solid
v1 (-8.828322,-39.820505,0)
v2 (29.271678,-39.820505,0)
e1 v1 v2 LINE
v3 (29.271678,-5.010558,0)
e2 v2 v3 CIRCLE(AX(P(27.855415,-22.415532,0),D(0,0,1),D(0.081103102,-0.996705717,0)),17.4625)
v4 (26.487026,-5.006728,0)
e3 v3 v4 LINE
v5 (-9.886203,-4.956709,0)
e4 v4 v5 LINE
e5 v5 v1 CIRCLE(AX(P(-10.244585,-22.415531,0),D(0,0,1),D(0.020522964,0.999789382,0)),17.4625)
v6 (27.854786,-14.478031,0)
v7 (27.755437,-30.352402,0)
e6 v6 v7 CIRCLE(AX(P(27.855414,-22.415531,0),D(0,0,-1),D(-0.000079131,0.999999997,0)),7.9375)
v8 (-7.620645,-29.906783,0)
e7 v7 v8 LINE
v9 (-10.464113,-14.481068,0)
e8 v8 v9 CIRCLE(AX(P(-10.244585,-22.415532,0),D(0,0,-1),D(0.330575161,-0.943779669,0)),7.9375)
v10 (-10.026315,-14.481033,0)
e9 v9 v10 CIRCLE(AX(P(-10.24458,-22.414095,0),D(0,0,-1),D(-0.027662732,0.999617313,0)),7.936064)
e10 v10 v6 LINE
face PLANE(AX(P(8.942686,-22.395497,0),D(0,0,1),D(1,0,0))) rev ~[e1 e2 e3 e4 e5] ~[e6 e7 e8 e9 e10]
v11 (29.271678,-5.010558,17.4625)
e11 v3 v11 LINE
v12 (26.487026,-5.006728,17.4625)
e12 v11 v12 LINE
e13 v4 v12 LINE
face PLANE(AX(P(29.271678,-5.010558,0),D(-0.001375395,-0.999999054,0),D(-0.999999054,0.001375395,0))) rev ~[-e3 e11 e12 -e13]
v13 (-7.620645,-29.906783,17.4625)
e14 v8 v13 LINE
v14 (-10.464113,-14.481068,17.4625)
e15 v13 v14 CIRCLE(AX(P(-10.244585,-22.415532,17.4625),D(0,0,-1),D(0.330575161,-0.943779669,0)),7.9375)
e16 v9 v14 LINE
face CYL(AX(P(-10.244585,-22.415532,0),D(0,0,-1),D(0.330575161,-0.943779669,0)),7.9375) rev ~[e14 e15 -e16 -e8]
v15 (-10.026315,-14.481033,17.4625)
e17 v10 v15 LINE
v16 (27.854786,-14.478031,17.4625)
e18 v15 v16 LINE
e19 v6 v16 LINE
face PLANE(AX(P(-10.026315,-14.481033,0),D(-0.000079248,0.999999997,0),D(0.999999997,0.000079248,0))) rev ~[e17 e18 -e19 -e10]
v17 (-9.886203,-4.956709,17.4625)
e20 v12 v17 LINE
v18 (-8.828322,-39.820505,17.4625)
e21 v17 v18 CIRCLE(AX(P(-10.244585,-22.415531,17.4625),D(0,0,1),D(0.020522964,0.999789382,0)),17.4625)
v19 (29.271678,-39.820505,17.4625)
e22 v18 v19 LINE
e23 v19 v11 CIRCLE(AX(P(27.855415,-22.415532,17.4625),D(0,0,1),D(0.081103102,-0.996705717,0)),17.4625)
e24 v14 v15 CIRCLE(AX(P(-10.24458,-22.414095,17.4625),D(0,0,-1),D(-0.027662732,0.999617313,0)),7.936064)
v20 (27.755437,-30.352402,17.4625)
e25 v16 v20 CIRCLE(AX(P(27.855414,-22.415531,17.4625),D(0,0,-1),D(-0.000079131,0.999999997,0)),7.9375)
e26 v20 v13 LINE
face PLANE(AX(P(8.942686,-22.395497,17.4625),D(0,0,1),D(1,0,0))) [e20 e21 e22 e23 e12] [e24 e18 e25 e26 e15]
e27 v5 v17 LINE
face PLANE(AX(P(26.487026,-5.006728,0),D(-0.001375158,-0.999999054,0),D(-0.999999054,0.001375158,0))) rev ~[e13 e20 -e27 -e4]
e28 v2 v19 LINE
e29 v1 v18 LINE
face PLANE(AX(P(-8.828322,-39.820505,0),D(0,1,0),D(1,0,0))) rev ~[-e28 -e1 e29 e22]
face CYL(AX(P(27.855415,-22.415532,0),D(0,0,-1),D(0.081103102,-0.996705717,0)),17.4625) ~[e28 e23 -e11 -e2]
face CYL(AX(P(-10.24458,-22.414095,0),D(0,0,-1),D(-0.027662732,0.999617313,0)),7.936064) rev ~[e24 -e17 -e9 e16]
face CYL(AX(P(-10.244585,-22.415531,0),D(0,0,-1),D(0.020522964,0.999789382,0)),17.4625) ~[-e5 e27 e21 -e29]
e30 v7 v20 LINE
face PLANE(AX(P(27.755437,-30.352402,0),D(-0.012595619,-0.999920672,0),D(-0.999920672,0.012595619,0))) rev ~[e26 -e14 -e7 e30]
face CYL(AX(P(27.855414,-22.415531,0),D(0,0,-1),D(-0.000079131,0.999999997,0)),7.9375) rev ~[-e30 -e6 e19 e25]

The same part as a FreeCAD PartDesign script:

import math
import FreeCAD as App
import Part
import Sketcher
Q = App.Units.Quantity

doc = App.newDocument("Part")
params = doc.addObject("Spreadsheet::Sheet", "Params")
for row, (alias, value) in enumerate([
    ("sketch1_width", "1.5 in"),
    ("sketch1_radius", "0.6875 in"),
    ("sketch1_radius2", "0.3125 in"),
    ("pad1_length", "0.6875 in"),
], start=1):
    params.set(f"A{row}", alias)
    params.set(f"B{row}", "=" + value)
    params.setAlias(f"B{row}", alias)

body = doc.addObject("PartDesign::Body", "Body")

sketch1 = body.newObject("Sketcher::SketchObject", "Sketch")
sketch1.AttachmentSupport = (doc.getObject("XY_Plane"), [""])
sketch1.MapMode = "FlatFace"
sketch1.addGeometry(Part.LineSegment(App.Vector(-8.83, -39.82, 0), App.Vector(29.27, -39.82, 0)), False)
sketch1.addGeometry(Part.ArcOfCircle(Part.Circle(App.Vector(27.86, -22.42, 0), App.Vector(0, 0, 1), 17.46), math.radians(-85), math.radians(85)), False)
sketch1.addGeometry(Part.LineSegment(App.Vector(29.27, -5.01, 0), App.Vector(26.49, -5.01, 0)), False)
sketch1.addGeometry(Part.LineSegment(App.Vector(26.49, -5.01, 0), App.Vector(-9.89, -4.96, 0)), False)
sketch1.addGeometry(Part.ArcOfCircle(Part.Circle(App.Vector(-10.24, -22.42, 0), App.Vector(0, 0, 1), 17.46), math.radians(89), math.radians(275)), False)
sketch1.addGeometry(Part.LineSegment(App.Vector(-10.03, -14.48, 0), App.Vector(27.85, -14.48, 0)), False)
sketch1.addGeometry(Part.ArcOfCircle(Part.Circle(App.Vector(27.86, -22.42, 0), App.Vector(0, 0, 1), 7.94), math.radians(-91), math.radians(90)), False)
sketch1.addGeometry(Part.LineSegment(App.Vector(27.76, -30.35, 0), App.Vector(-7.62, -29.91, 0)), False)
sketch1.addGeometry(Part.ArcOfCircle(Part.Circle(App.Vector(-10.24, -22.42, 0), App.Vector(0, 0, 1), 7.94), math.radians(92), math.radians(289)), False)
sketch1.addGeometry(Part.ArcOfCircle(Part.Circle(App.Vector(-10.24, -22.41, 0), App.Vector(0, 0, 1), 7.94), math.radians(88.42), math.radians(91.59)), False)
sketch1.addConstraint(Sketcher.Constraint("Coincident", 0, 2, 1, 1))
sketch1.addConstraint(Sketcher.Constraint("Coincident", 1, 2, 2, 1))
sketch1.addConstraint(Sketcher.Constraint("Coincident", 2, 2, 3, 1))
sketch1.addConstraint(Sketcher.Constraint("Coincident", 3, 2, 4, 1))
sketch1.addConstraint(Sketcher.Constraint("Coincident", 4, 2, 0, 1))
sketch1.addConstraint(Sketcher.Constraint("Tangent", 5, 2, 6, 2))
sketch1.addConstraint(Sketcher.Constraint("Tangent", 6, 1, 7, 1))
sketch1.addConstraint(Sketcher.Constraint("Coincident", 7, 2, 8, 2))
sketch1.addConstraint(Sketcher.Constraint("Coincident", 8, 1, 9, 2))
sketch1.addConstraint(Sketcher.Constraint("Coincident", 9, 1, 5, 1))
sketch1.addConstraint(Sketcher.Constraint("Horizontal", 0))
sketch1.addConstraint(Sketcher.Constraint("Coincident", 6, 3, 1, 3))
sketch1.addConstraint(Sketcher.Constraint("Coincident", 8, 3, 4, 3))
sketch1.addConstraint(Sketcher.Constraint("Equal", 1, 4))
sketch1.addConstraint(Sketcher.Constraint("Equal", 6, 8))
sketch1.addConstraint(Sketcher.Constraint("Parallel", 2, 3))
sketch1.addConstraint(Sketcher.Constraint("Horizontal", 1, 3, 4, 3))
sketch1.addConstraint(Sketcher.Constraint("Vertical", 0, 2, 1, 2))
sketch1.addConstraint(Sketcher.Constraint("DistanceX", 0, 1, 0, 2, Q("1.5 in")))
sketch1.addConstraint(Sketcher.Constraint("Radius", 1, Q("0.6875 in")))
sketch1.addConstraint(Sketcher.Constraint("Radius", 6, Q("0.3125 in")))
sketch1.addConstraint(Sketcher.Constraint("Radius", 9, 7.936064))
sketch1.addConstraint(Sketcher.Constraint("Distance", 5, 37.881101))
sketch1.addConstraint(Sketcher.Constraint("DistanceY", 6, 1, -1, 1, 30.352402))
sketch1.addConstraint(Sketcher.Constraint("DistanceX", 8, 1, 9, 1, 0.437798))
sketch1.addConstraint(Sketcher.Constraint("DistanceY", 4, 3, 9, 1, 7.934498))
sketch1.addConstraint(Sketcher.Constraint("Distance", 7, 35.378889))
sketch1.addConstraint(Sketcher.Constraint("DistanceX", 9, 3, -1, 1, 10.24458))
sketch1.addConstraint(Sketcher.Constraint("DistanceX", -1, 1, 0, 2, 29.271678))
sketch1.addConstraint(Sketcher.Constraint("DistanceY", 3, 2, -1, 1, 4.956709))
sketch1.addConstraint(Sketcher.Constraint("DistanceX", 2, 2, 6, 3, 1.368388))
sketch1.setExpression("Constraints[18]", "Params.sketch1_width")
sketch1.setExpression("Constraints[19]", "Params.sketch1_radius")
sketch1.setExpression("Constraints[20]", "Params.sketch1_radius2")
pad1 = body.newObject("PartDesign::Pad", "Pad")
pad1.Profile = sketch1
pad1.setExpression("Length", "Params.pad1_length")

doc.recompute()
